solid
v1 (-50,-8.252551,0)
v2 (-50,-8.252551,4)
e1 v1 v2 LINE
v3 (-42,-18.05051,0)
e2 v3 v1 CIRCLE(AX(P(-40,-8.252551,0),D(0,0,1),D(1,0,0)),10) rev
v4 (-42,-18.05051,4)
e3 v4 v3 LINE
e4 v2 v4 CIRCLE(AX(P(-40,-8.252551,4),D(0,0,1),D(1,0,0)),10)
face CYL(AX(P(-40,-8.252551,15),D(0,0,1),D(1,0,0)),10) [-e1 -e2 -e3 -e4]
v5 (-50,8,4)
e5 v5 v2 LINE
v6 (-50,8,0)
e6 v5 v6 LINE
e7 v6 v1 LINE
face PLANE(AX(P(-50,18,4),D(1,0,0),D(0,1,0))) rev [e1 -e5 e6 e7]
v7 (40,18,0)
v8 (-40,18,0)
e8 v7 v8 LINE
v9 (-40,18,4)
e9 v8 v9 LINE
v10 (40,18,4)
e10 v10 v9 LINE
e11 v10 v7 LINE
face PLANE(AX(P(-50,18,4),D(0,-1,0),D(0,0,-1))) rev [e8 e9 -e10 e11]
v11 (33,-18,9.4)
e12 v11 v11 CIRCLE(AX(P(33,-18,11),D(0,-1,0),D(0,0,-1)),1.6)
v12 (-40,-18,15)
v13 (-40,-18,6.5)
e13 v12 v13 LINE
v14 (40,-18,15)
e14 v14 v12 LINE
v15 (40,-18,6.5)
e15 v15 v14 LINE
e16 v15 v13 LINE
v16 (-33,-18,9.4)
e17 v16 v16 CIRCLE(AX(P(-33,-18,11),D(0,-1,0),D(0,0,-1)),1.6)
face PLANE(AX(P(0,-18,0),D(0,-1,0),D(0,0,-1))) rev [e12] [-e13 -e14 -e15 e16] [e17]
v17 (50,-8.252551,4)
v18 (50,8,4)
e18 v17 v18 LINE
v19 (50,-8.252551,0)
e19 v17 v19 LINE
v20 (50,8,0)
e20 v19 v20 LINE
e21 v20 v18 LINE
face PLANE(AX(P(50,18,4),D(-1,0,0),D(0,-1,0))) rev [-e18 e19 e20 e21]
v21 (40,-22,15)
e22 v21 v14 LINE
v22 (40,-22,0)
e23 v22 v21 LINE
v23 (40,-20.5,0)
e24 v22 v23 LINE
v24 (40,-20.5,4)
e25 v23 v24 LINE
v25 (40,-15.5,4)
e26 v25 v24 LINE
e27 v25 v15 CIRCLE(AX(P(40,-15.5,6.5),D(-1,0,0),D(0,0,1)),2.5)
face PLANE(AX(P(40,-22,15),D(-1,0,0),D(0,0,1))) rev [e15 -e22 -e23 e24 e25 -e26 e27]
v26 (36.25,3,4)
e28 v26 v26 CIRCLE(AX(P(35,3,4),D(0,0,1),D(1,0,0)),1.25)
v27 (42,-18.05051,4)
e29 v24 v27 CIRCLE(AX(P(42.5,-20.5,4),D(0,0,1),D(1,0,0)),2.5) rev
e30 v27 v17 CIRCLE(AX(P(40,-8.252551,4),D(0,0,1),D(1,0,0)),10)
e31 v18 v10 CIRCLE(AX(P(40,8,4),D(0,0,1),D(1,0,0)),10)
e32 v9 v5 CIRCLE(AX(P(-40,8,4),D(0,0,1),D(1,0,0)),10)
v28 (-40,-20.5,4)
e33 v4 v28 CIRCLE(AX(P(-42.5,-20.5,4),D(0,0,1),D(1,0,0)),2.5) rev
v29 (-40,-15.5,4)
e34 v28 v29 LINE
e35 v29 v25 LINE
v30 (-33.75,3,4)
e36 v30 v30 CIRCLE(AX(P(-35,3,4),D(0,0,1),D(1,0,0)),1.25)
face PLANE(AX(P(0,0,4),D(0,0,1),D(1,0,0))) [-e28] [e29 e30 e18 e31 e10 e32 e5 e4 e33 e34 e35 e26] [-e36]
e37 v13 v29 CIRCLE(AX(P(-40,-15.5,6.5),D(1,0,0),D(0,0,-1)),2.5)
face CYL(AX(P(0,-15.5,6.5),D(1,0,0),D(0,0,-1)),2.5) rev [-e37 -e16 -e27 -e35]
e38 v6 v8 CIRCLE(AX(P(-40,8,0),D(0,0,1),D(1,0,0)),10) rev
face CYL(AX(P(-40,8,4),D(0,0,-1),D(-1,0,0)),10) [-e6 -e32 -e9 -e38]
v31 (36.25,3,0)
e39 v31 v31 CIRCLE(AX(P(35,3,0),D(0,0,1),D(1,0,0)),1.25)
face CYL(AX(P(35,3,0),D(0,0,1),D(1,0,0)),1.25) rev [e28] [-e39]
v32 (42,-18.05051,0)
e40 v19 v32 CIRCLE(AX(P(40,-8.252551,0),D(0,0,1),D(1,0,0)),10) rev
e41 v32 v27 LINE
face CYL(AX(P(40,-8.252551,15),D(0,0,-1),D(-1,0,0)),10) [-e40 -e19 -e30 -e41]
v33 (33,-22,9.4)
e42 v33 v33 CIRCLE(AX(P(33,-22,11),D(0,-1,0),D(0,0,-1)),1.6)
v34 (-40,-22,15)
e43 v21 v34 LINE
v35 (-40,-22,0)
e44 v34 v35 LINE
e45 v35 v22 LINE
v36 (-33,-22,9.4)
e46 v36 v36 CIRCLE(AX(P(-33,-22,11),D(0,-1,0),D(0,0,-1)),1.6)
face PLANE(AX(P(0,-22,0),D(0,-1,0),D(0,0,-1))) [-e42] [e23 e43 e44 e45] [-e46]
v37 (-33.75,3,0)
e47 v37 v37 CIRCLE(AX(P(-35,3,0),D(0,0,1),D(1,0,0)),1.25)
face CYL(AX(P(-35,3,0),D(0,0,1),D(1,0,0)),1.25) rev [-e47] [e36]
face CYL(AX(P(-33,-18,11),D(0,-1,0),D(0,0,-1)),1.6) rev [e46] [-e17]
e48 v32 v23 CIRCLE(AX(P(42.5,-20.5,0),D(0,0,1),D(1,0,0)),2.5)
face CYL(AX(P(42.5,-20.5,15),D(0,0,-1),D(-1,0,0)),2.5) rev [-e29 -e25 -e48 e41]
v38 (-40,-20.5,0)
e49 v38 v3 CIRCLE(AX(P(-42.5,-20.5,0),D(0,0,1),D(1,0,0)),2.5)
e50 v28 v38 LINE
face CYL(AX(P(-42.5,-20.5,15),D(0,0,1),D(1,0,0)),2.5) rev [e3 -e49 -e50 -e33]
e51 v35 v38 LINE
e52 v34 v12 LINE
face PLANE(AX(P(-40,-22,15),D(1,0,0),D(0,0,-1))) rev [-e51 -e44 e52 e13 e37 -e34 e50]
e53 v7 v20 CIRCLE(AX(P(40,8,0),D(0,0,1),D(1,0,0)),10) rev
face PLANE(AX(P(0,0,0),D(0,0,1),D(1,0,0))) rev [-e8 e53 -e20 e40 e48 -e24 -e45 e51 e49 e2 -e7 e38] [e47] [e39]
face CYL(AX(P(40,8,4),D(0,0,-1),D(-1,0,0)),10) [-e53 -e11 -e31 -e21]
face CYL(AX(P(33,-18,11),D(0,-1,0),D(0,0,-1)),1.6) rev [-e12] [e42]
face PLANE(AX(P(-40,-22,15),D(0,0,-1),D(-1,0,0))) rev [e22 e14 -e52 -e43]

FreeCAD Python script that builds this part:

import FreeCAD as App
import Part
import Sketcher


def edges_at(feature, points):
    """Names of the edges that pass closest to the given points."""
    edges = feature.Shape.Edges
    near = lambda p: min(range(len(edges)), key=lambda i: edges[i].distToShape(Part.Vertex(*p))[0])
    return sorted({f"Edge{near(p) + 1}" for p in points})

doc = App.newDocument("Part")
body = doc.addObject("PartDesign::Body", "Body")

# Sketch on XY plane
sketch1 = body.newObject("Sketcher::SketchObject", "Sketch")
sketch1.AttachmentSupport = (doc.getObject("XY_Plane"), [""])
sketch1.MapMode = "FlatFace"
sketch1.addGeometry(Part.LineSegment(App.Vector(-50, 18, 0), App.Vector(-50, -18, 0)), False)
sketch1.addGeometry(Part.LineSegment(App.Vector(-50, -18, 0), App.Vector(50, -18, 0)), False)
sketch1.addGeometry(Part.LineSegment(App.Vector(50, -18, 0), App.Vector(50, 18, 0)), False)
sketch1.addGeometry(Part.LineSegment(App.Vector(50, 18, 0), App.Vector(-50, 18, 0)), False)
sketch1.addConstraint(Sketcher.Constraint("Coincident", 0, 2, 1, 1))
sketch1.addConstraint(Sketcher.Constraint("Coincident", 1, 2, 2, 1))
sketch1.addConstraint(Sketcher.Constraint("Coincident", 2, 2, 3, 1))
sketch1.addConstraint(Sketcher.Constraint("Coincident", 3, 2, 0, 1))
sketch1.addConstraint(Sketcher.Constraint("Vertical", 0))
sketch1.addConstraint(Sketcher.Constraint("Horizontal", 1))
sketch1.addConstraint(Sketcher.Constraint("Vertical", 2))
sketch1.addConstraint(Sketcher.Constraint("Horizontal", 3))
sketch1.addConstraint(Sketcher.Constraint("Symmetric", 0, 2, 2, 2, -1, 1))
sketch1.addConstraint(Sketcher.Constraint("DistanceX", 1, 1, 1, 2, 100.0))
sketch1.addConstraint(Sketcher.Constraint("DistanceY", 0, 2, 0, 1, 36.0))
pad1 = body.newObject("PartDesign::Pad", "Pad")
pad1.Profile = sketch1
pad1.Length = 4

# Sketch on XZ plane
sketch2 = body.newObject("Sketcher::SketchObject", "Sketch001")
sketch2.AttachmentSupport = (doc.getObject("XZ_Plane"), [""])
sketch2.MapMode = "FlatFace"
sketch2.AttachmentOffset = App.Placement(App.Vector(0, 0, 18), App.Rotation())
sketch2.addGeometry(Part.LineSegment(App.Vector(-40, 15, 0), App.Vector(-40, 0, 0)), False)
sketch2.addGeometry(Part.LineSegment(App.Vector(-40, 0, 0), App.Vector(40, 0, 0)), False)
sketch2.addGeometry(Part.LineSegment(App.Vector(40, 0, 0), App.Vector(40, 15, 0)), False)
sketch2.addGeometry(Part.LineSegment(App.Vector(40, 15, 0), App.Vector(-40, 15, 0)), False)
sketch2.addConstraint(Sketcher.Constraint("Coincident", 0, 2, 1, 1))
sketch2.addConstraint(Sketcher.Constraint("Coincident", 1, 2, 2, 1))
sketch2.addConstraint(Sketcher.Constraint("Coincident", 2, 2, 3, 1))
sketch2.addConstraint(Sketcher.Constraint("Coincident", 3, 2, 0, 1))
sketch2.addConstraint(Sketcher.Constraint("Vertical", 0))
sketch2.addConstraint(Sketcher.Constraint("Horizontal", 1))
sketch2.addConstraint(Sketcher.Constraint("Vertical", 2))
sketch2.addConstraint(Sketcher.Constraint("Horizontal", 3))
sketch2.addConstraint(Sketcher.Constraint("Symmetric", 0, 2, 1, 2, -1, 1))
sketch2.addConstraint(Sketcher.Constraint("DistanceX", 1, 1, 1, 2, 80.0))
sketch2.addConstraint(Sketcher.Constraint("DistanceY", 0, 2, 0, 1, 15.0))
pad2 = body.newObject("PartDesign::Pad", "Pad001")
pad2.Profile = sketch2
pad2.Length = 4

# Sketch on XY plane
sketch3 = body.newObject("Sketcher::SketchObject", "Sketch002")
sketch3.AttachmentSupport = (doc.getObject("XY_Plane"), [""])
sketch3.MapMode = "FlatFace"
sketch3.AttachmentOffset = App.Placement(App.Vector(0, 0, 4), App.Rotation())
sketch3.addGeometry(Part.Circle(App.Vector(35, 3, 0), App.Vector(0, 0, 1), 1.2), False)
sketch3.addGeometry(Part.Circle(App.Vector(-35, 3, 0), App.Vector(0, 0, 1), 1.2), False)
sketch3.addConstraint(Sketcher.Constraint("Equal", 0, 1))
sketch3.addConstraint(Sketcher.Constraint("Symmetric", 0, 3, 1, 3, -2))
sketch3.addConstraint(Sketcher.Constraint("Diameter", 0, 2.5))
sketch3.addConstraint(Sketcher.Constraint("DistanceX", -1, 1, 0, 3, 35.0))
sketch3.addConstraint(Sketcher.Constraint("DistanceY", -1, 1, 0, 3, 3.0))
pocket1 = body.newObject("PartDesign::Pocket", "Pocket")
pocket1.Profile = sketch3
pocket1.Type = "ThroughAll"
doc.recompute()

fillet = body.newObject("PartDesign::Fillet", "Fillet")
fillet.Base = (pocket1, edges_at(pocket1, [(0, -18, 4)]))
fillet.Radius = 2.5
doc.recompute()

fillet2 = body.newObject("PartDesign::Fillet", "Fillet001")
fillet2.Base = (fillet, edges_at(fillet, [(-40, -18, 2), (40, -18, 2)]))
fillet2.Radius = 2.5
doc.recompute()

fillet3 = body.newObject("PartDesign::Fillet", "Fillet002")
fillet3.Base = (fillet2, edges_at(fillet2, [
    (-50, -18, 2),
    (50, -18, 2),
    (-50, 18, 2),
    (50, 18, 2),
]))
fillet3.Radius = 10

# Sketch on XZ plane
sketch4 = body.newObject("Sketcher::SketchObject", "Sketch003")
sketch4.AttachmentSupport = (doc.getObject("XZ_Plane"), [""])
sketch4.MapMode = "FlatFace"
sketch4.AttachmentOffset = App.Placement(App.Vector(0, 0, 22), App.Rotation())
sketch4.addGeometry(Part.Circle(App.Vector(33, 11, 0), App.Vector(0, 0, 1), 1.6), False)
sketch4.addGeometry(Part.Circle(App.Vector(-33, 11, 0), App.Vector(0, 0, 1), 1.6), False)
sketch4.addConstraint(Sketcher.Constraint("Equal", 0, 1))
sketch4.addConstraint(Sketcher.Constraint("Symmetric", 0, 3, 1, 3, -2))
sketch4.addConstraint(Sketcher.Constraint("Diameter", 0, 3.2))
sketch4.addConstraint(Sketcher.Constraint("DistanceX", -1, 1, 0, 3, 33.0))
sketch4.addConstraint(Sketcher.Constraint("DistanceY", -1, 1, 0, 3, 11.0))
pocket2 = body.newObject("PartDesign::Pocket", "Pocket001")
pocket2.Profile = sketch4
pocket2.Length = 4

doc.recompute()
